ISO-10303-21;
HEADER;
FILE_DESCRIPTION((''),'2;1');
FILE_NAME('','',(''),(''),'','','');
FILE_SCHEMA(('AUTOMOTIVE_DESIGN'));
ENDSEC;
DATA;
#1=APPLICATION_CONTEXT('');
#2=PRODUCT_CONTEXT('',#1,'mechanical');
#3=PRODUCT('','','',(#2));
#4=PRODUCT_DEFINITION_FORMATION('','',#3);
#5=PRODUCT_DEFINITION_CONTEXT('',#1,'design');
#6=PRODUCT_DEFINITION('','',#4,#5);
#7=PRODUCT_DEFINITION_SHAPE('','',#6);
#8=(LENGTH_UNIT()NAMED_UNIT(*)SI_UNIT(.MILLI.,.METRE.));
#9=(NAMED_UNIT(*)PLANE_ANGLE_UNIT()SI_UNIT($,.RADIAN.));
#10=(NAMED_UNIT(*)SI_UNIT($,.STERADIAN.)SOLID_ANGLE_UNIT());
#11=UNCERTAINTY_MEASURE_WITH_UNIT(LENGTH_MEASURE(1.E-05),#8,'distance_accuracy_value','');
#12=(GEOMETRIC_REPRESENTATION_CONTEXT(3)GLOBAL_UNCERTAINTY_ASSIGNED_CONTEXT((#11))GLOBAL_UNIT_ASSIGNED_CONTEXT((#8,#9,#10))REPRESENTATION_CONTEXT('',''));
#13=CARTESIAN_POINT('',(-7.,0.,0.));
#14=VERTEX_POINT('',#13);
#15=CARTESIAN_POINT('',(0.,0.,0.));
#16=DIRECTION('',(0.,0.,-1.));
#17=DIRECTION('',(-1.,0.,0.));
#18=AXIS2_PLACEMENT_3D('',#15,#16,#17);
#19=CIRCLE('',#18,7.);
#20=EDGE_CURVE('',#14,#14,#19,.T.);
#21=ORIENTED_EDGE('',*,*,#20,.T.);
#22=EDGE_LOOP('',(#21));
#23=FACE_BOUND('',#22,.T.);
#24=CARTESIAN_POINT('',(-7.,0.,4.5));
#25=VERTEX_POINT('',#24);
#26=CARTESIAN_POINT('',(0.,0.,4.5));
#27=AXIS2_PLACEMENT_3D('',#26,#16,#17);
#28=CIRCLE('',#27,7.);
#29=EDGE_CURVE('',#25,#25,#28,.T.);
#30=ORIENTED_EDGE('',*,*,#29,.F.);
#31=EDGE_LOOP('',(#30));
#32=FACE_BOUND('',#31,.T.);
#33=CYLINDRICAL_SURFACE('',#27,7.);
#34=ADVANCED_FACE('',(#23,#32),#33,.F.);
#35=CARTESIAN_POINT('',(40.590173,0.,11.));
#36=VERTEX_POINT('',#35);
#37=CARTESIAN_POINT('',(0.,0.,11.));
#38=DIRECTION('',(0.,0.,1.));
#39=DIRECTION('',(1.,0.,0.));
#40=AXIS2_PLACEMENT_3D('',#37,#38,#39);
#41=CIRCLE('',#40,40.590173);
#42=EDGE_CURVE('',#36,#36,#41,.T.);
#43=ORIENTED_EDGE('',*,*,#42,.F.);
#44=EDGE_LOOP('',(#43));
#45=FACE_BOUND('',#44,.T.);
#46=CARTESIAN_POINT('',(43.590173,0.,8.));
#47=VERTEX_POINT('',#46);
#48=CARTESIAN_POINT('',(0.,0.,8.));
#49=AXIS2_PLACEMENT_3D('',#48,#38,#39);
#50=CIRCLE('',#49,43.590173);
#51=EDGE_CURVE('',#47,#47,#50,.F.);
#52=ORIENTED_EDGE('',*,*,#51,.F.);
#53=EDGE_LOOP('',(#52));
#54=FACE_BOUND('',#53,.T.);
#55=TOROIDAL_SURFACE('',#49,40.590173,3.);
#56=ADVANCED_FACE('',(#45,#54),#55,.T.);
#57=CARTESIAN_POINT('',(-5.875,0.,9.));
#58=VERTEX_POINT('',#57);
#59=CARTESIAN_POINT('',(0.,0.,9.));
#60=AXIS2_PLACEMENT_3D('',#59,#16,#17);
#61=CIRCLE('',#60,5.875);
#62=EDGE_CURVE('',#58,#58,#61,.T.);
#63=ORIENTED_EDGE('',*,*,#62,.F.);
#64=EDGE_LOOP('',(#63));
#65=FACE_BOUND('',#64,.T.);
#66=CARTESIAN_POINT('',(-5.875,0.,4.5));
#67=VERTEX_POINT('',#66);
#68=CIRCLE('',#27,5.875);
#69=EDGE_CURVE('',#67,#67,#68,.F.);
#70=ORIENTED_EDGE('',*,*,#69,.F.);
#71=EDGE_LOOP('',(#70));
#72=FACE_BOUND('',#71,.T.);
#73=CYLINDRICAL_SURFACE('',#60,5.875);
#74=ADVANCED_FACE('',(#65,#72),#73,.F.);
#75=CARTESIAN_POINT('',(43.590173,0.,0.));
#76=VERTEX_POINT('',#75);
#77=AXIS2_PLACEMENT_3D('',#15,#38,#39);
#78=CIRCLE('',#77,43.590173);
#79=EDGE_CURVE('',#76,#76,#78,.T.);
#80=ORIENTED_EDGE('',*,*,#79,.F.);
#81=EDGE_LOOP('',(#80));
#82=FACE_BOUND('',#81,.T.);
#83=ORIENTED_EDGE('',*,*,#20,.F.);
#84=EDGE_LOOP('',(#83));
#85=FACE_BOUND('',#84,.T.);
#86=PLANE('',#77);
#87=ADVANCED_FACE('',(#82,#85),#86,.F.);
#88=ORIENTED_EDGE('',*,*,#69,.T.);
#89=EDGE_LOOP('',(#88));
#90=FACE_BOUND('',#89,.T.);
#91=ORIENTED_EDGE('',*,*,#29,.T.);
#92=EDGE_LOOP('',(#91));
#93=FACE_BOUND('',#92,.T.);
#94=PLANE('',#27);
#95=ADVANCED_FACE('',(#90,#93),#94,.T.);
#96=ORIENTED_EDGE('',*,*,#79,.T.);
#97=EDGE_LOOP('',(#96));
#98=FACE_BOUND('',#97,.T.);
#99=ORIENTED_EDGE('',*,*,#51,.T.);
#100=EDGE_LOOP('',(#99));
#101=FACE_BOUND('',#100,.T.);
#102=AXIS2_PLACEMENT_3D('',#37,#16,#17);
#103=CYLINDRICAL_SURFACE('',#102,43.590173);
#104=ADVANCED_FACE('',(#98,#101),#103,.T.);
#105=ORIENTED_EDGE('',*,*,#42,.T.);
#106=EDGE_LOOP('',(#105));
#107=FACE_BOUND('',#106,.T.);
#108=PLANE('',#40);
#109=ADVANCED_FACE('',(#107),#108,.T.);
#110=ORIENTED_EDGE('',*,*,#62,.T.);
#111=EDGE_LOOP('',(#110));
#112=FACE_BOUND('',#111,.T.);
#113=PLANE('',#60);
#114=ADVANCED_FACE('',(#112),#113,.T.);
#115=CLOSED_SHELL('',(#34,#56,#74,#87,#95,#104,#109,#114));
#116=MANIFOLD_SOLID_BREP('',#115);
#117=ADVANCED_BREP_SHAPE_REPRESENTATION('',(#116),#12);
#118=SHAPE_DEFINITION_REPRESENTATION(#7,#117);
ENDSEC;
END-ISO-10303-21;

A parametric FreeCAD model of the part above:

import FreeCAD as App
import Part
import Sketcher
from FreeCAD import Vector
Q = App.Units.Quantity


def edges_at(feature, points):
    """Names of the edges that pass closest to the given points."""
    edges = feature.Shape.Edges
    near = lambda p: min(range(len(edges)), key=lambda i: edges[i].distToShape(Part.Vertex(*p))[0])
    return sorted({f"Edge{near(p) + 1}" for p in points})

doc = App.newDocument("Part")
body = doc.addObject("PartDesign::Body", "Body")

# Sketch on XY plane
sketch1 = body.newObject("Sketcher::SketchObject", "Sketch")
sketch1.AttachmentSupport = (doc.getObject("XY_Plane"), [""])
sketch1.MapMode = "FlatFace"
sketch1.addGeometry(Part.Circle(Vector(0, 0, 0), Vector(0, 0, 1), 43.590173), False)
sketch1.addConstraint(Sketcher.Constraint("Coincident", 0, 3, -1, 1))
sketch1.addConstraint(Sketcher.Constraint("Diameter", 0, Q("87.180346 mm")))
pad1 = body.newObject("PartDesign::Pad", "Pad")
pad1.Profile = sketch1
pad1.Length = 11
doc.recompute()

fillet = body.newObject("PartDesign::Fillet", "Fillet")
fillet.Base = (pad1, edges_at(pad1, [(-43.59, 0, 11)]))
fillet.Radius = 3

# Sketch on XY plane
sketch2 = body.newObject("Sketcher::SketchObject", "Sketch001")
sketch2.AttachmentSupport = (doc.getObject("XY_Plane"), [""])
sketch2.MapMode = "FlatFace"
sketch2.addGeometry(Part.Circle(Vector(0, 0, 0), Vector(0, 0, 1), 5.875), False)
sketch2.addConstraint(Sketcher.Constraint("Coincident", 0, 3, -1, 1))
sketch2.addConstraint(Sketcher.Constraint("Diameter", 0, Q("11.75 mm")))
pocket1 = body.newObject("PartDesign::Pocket", "Pocket")
pocket1.Profile = sketch2
pocket1.Length = 9
pocket1.Reversed = True

# Sketch on XY plane
sketch3 = body.newObject("Sketcher::SketchObject", "Sketch002")
sketch3.AttachmentSupport = (doc.getObject("XY_Plane"), [""])
sketch3.MapMode = "FlatFace"
sketch3.addGeometry(Part.Circle(Vector(0, 0, 0), Vector(0, 0, 1), 7), False)
sketch3.addConstraint(Sketcher.Constraint("Coincident", 0, 3, -1, 1))
sketch3.addConstraint(Sketcher.Constraint("Diameter", 0, Q("14 mm")))
pocket2 = body.newObject("PartDesign::Pocket", "Pocket001")
pocket2.Profile = sketch3
pocket2.Length = 4.5
pocket2.Reversed = True

doc.recompute()
